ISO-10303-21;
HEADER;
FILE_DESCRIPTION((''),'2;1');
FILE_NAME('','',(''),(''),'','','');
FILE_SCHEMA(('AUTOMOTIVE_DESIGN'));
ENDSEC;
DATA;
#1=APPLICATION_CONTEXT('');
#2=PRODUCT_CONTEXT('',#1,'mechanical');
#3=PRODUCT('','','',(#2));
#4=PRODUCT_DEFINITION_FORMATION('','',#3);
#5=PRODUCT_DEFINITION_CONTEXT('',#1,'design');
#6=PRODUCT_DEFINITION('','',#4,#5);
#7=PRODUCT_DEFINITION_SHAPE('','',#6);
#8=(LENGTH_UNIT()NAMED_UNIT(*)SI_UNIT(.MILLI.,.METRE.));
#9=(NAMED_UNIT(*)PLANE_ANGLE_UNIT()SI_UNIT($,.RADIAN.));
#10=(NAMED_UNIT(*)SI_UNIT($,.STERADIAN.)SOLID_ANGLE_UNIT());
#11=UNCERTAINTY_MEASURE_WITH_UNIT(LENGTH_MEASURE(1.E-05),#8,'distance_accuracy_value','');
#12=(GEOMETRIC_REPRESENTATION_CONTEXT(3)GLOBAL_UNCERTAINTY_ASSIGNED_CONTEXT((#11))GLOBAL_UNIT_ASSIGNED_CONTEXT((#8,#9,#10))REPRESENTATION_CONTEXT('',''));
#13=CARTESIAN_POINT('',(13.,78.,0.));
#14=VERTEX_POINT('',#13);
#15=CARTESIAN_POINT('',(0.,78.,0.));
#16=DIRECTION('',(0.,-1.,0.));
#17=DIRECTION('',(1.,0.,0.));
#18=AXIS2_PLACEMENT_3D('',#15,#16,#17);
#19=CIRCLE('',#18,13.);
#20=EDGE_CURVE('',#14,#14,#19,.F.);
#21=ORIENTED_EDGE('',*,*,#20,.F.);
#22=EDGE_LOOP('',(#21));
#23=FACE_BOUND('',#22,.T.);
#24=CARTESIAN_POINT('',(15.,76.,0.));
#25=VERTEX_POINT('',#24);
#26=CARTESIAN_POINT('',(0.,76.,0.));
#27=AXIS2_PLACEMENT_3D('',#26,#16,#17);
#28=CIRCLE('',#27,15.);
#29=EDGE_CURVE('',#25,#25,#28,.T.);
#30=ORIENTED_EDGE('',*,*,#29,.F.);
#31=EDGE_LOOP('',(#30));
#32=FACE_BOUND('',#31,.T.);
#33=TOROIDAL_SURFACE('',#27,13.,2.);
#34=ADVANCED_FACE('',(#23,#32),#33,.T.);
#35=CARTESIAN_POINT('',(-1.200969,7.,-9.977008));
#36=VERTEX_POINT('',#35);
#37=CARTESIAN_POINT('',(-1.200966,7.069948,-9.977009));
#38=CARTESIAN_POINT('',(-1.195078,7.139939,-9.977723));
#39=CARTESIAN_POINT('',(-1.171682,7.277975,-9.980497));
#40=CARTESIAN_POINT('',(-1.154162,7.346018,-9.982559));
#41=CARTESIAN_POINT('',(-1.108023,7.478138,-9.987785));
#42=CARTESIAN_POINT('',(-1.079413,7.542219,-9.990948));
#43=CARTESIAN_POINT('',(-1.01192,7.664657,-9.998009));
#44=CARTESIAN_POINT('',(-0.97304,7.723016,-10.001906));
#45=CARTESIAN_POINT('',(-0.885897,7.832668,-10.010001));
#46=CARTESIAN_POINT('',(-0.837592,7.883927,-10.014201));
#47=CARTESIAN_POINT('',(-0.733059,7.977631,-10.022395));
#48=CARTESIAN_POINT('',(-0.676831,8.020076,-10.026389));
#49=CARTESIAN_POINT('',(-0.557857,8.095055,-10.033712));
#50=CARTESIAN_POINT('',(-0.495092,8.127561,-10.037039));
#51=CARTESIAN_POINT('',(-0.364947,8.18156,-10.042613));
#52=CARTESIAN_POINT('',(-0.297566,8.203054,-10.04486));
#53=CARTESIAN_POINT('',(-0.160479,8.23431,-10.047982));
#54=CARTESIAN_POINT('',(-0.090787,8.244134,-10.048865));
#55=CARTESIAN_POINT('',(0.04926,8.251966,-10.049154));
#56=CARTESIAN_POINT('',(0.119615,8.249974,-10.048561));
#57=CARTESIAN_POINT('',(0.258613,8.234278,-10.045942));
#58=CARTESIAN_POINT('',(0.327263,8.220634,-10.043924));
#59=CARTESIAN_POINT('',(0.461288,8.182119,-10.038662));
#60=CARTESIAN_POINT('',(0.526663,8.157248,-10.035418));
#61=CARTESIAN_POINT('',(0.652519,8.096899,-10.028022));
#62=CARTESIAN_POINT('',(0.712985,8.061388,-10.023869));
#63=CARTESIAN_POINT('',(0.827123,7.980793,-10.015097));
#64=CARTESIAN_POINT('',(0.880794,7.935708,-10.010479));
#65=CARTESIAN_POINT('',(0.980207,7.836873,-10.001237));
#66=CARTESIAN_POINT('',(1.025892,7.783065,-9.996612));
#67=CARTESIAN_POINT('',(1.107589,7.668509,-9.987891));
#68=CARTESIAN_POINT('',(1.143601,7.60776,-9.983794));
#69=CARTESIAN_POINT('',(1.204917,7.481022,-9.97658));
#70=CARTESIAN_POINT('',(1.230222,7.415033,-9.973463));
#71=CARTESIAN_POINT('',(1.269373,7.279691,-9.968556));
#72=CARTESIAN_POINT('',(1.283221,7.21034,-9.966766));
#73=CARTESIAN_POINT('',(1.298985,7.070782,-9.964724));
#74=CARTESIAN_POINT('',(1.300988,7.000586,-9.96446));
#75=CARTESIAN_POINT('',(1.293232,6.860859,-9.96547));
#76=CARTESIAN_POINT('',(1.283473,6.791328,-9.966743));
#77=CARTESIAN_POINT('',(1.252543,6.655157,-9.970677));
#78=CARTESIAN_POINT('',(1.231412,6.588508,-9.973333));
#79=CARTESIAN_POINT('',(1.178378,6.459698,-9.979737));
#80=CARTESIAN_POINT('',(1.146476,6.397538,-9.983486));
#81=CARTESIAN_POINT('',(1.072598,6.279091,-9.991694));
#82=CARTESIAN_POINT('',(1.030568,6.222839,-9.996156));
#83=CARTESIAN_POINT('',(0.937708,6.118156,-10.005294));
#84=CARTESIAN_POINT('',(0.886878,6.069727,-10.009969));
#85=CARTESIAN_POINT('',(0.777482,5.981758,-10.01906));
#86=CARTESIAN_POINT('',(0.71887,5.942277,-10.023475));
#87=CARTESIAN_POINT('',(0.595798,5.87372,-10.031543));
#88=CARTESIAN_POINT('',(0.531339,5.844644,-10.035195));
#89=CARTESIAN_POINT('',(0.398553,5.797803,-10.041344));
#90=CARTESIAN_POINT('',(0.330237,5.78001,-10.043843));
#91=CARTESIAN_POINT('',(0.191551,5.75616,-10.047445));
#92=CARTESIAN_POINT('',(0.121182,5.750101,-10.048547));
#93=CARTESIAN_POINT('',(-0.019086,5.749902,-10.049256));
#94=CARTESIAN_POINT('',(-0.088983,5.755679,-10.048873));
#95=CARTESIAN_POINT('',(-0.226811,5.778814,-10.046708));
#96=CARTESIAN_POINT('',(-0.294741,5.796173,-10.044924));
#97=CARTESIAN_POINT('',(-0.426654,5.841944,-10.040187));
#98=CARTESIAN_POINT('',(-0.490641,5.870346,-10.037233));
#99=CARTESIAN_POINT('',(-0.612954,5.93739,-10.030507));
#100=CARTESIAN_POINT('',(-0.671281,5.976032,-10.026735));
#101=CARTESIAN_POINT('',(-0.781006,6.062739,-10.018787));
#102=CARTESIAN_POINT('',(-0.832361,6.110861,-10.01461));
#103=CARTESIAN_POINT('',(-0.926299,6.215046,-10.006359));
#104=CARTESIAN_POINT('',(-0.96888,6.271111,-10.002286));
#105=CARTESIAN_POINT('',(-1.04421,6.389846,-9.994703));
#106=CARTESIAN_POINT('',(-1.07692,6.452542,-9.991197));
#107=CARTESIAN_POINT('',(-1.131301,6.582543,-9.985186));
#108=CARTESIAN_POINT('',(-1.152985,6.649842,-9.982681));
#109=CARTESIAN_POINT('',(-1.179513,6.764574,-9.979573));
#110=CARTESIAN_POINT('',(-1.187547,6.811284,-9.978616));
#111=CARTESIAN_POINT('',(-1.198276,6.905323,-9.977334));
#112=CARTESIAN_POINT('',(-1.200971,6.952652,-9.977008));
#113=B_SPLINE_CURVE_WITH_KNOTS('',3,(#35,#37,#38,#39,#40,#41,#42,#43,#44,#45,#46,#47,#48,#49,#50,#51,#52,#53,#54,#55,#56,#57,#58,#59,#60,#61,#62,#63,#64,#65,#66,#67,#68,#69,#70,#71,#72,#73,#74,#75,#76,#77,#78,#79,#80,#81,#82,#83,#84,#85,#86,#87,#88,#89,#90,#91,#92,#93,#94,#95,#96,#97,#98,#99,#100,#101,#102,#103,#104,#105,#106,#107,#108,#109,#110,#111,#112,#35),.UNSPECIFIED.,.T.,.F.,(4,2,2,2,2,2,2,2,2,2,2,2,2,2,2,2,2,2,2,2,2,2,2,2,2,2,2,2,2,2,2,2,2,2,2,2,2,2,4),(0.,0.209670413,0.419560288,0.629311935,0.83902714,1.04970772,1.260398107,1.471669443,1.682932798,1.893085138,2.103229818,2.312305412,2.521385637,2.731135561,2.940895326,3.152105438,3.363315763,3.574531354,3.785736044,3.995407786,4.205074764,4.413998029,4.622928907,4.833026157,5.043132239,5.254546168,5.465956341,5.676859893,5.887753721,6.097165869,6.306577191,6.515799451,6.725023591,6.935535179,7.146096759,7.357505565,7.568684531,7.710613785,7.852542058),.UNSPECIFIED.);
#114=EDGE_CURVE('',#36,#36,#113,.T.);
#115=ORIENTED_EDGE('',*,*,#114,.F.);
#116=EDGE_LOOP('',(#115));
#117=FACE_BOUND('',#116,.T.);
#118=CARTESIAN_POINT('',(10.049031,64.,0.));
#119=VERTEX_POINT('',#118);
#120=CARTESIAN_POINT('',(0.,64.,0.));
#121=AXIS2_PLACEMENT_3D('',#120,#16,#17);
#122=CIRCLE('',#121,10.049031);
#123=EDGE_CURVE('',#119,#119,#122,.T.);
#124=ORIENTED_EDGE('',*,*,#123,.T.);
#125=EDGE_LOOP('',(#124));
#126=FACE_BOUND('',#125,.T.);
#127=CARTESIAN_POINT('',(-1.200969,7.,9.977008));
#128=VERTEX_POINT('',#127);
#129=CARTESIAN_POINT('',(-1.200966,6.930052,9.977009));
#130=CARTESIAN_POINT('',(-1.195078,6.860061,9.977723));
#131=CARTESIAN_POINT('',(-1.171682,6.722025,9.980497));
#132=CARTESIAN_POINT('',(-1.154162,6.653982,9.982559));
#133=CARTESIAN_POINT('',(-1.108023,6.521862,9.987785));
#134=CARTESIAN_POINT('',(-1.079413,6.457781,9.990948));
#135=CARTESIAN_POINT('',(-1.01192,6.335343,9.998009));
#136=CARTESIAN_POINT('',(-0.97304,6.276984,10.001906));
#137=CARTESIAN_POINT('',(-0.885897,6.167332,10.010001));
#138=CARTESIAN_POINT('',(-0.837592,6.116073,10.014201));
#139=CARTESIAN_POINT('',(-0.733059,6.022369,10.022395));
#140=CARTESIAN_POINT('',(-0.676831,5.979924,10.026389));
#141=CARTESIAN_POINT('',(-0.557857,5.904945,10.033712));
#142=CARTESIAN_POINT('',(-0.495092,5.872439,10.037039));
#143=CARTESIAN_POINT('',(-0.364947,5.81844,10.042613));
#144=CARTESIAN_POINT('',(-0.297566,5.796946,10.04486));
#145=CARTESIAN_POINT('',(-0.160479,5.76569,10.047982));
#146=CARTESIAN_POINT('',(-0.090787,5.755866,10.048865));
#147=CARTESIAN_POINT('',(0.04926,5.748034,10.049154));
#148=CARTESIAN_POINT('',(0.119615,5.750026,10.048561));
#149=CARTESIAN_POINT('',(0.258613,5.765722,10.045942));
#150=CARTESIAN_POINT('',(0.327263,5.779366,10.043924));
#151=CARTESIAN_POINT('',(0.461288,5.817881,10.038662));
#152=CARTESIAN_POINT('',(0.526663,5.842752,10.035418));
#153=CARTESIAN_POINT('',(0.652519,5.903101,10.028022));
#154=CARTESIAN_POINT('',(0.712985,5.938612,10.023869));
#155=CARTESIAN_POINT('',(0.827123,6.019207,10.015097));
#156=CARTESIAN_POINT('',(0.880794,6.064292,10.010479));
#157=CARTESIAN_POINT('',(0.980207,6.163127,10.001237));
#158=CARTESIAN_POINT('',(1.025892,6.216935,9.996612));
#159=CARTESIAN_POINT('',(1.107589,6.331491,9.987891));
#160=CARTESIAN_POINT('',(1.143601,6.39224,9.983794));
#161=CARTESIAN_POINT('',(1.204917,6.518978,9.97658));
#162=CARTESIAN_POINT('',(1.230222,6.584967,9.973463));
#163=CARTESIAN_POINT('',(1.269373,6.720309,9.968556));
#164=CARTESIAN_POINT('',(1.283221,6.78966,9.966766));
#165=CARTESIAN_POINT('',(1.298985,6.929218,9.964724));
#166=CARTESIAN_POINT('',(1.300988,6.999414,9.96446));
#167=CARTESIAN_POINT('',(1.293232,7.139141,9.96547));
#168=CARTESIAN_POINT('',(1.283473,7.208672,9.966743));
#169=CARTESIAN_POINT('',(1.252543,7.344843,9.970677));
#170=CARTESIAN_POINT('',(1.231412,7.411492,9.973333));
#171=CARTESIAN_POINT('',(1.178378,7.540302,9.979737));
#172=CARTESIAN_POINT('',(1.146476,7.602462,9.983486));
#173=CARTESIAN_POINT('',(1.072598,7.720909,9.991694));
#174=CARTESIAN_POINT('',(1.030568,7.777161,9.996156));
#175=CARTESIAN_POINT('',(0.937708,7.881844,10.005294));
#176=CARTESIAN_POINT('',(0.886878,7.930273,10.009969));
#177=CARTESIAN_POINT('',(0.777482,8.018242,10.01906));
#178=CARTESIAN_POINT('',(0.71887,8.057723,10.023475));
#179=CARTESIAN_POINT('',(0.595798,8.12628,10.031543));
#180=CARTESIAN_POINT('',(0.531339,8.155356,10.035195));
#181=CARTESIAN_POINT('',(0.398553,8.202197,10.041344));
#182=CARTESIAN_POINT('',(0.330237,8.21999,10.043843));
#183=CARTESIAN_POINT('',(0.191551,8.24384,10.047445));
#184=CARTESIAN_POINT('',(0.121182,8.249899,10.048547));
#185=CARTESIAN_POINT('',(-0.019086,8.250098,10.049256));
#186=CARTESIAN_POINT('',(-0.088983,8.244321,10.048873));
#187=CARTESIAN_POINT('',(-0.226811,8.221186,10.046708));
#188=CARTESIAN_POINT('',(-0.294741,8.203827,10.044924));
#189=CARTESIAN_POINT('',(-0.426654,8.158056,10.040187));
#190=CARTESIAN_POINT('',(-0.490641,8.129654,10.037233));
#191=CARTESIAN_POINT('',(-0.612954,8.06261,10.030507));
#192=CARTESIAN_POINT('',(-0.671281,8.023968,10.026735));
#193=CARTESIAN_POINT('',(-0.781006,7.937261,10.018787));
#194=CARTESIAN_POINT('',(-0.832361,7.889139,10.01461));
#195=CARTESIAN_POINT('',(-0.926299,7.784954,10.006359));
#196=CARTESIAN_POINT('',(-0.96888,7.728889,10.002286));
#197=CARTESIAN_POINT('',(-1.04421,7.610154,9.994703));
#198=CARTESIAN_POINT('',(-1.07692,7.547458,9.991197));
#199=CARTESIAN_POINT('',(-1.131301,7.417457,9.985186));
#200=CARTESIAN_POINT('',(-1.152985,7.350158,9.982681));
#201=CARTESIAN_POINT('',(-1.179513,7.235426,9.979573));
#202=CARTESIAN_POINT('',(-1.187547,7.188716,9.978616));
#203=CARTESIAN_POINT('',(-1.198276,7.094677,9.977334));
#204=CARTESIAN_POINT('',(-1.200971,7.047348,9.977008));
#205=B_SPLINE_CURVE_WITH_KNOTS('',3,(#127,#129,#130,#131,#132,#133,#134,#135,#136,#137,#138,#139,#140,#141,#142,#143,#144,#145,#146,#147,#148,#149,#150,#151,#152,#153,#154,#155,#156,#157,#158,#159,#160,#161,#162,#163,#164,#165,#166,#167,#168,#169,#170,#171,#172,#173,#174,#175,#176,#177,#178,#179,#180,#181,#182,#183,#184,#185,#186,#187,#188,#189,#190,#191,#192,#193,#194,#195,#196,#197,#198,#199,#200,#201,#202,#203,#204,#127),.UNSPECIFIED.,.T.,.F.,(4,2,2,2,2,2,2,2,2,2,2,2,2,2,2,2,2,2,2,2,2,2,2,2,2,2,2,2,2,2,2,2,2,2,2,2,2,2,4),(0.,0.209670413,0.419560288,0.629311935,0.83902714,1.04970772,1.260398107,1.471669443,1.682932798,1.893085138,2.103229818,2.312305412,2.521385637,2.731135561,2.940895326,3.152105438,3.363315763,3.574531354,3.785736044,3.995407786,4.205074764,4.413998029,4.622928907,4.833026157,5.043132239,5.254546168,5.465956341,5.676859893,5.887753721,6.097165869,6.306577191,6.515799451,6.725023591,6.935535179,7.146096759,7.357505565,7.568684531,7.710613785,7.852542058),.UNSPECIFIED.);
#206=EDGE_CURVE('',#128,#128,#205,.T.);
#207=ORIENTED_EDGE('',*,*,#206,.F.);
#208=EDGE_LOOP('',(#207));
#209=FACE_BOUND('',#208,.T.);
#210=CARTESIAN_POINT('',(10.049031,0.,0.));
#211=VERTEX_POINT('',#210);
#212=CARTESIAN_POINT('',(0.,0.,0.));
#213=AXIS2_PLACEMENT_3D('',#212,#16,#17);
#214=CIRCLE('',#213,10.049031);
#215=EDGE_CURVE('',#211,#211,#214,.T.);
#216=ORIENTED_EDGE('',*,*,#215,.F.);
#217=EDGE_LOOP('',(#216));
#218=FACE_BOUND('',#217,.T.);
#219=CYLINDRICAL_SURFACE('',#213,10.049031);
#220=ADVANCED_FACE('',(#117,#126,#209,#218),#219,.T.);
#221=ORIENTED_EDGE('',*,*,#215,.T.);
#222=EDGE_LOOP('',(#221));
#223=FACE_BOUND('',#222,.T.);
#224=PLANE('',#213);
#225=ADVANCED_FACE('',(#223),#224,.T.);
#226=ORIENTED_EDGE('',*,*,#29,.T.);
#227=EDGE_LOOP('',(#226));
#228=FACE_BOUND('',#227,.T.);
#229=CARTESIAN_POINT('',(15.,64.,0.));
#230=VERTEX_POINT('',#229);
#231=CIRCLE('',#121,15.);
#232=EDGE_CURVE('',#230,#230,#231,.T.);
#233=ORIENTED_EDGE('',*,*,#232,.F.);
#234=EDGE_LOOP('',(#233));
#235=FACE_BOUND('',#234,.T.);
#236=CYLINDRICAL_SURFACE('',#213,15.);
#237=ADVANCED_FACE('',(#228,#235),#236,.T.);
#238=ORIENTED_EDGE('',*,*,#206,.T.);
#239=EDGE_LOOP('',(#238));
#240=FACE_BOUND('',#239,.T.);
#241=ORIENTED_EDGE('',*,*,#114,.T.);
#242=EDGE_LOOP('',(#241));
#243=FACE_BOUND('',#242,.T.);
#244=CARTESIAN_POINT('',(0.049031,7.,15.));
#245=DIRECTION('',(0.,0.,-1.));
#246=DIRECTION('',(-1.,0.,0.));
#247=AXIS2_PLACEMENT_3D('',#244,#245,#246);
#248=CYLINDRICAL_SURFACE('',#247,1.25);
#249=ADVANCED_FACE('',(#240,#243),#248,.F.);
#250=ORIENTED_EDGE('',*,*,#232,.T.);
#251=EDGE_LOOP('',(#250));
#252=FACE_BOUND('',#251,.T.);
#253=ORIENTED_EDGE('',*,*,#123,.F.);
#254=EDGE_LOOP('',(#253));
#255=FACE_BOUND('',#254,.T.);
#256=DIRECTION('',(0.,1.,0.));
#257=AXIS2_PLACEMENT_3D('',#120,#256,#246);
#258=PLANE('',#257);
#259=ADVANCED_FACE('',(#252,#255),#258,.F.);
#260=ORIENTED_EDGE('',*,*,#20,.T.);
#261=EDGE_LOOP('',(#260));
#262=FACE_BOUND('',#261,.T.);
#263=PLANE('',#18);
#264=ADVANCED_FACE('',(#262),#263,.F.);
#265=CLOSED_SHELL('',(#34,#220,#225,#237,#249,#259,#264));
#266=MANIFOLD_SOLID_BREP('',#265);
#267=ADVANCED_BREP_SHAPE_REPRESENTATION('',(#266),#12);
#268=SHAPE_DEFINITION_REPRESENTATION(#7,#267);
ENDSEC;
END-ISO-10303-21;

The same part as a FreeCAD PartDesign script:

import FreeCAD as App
import Part
import Sketcher
from FreeCAD import Vector
Q = App.Units.Quantity


def edges_at(feature, points):
    """Names of the edges that pass closest to the given points."""
    edges = feature.Shape.Edges
    near = lambda p: min(range(len(edges)), key=lambda i: edges[i].distToShape(Part.Vertex(*p))[0])
    return sorted({f"Edge{near(p) + 1}" for p in points})


def add_polygon(sketch, points):
    """Adds a closed chain of lines whose ends are joined by coincident constraints."""
    first, n = sketch.GeometryCount, len(points)
    for a, b in zip(points, points[1:] + points[:1]):
        sketch.addGeometry(Part.LineSegment(App.Vector(*a, 0), App.Vector(*b, 0)), False)
    for i in range(n):
        sketch.addConstraint(Sketcher.Constraint("Coincident", first + i, 2, first + (i + 1) % n, 1))

doc = App.newDocument("Part")
body = doc.addObject("PartDesign::Body", "Body")

sketch1 = body.newObject("Sketcher::SketchObject", "Sketch")
sketch1.AttachmentSupport = (doc.getObject("XY_Plane"), [""])
sketch1.MapMode = "FlatFace"
add_polygon(sketch1, [(0, 78), (0, 0), (10.049031, 0), (10.049031, 64), (15, 64), (15, 78)])
sketch1.addConstraint(Sketcher.Constraint("Vertical", 0))
sketch1.addConstraint(Sketcher.Constraint("Horizontal", 1))
sketch1.addConstraint(Sketcher.Constraint("Vertical", 2))
sketch1.addConstraint(Sketcher.Constraint("Horizontal", 3))
sketch1.addConstraint(Sketcher.Constraint("Vertical", 4))
sketch1.addConstraint(Sketcher.Constraint("Horizontal", 5))
sketch1.addConstraint(Sketcher.Constraint("Coincident", 0, 2, -1, 1))
sketch1.addConstraint(Sketcher.Constraint("DistanceX", 5, 2, 5, 1, Q("15 mm")))
sketch1.addConstraint(Sketcher.Constraint("DistanceY", 0, 2, 0, 1, Q("78 mm")))
sketch1.addConstraint(Sketcher.Constraint("DistanceY", 2, 1, 2, 2, Q("64 mm")))
sketch1.addConstraint(Sketcher.Constraint("DistanceX", 1, 1, 1, 2, Q("10.049031 mm")))
revolution = body.newObject("PartDesign::Revolution", "Revolution")
revolution.Profile = sketch1
revolution.ReferenceAxis = (sketch1, ["V_Axis"])
revolution.Angle = 360
doc.recompute()

fillet = body.newObject("PartDesign::Fillet", "Fillet")
fillet.Base = (revolution, edges_at(revolution, [(-15, 78, 0)]))
fillet.Radius = 2

sketch2 = body.newObject("Sketcher::SketchObject", "Sketch001")
sketch2.AttachmentSupport = (doc.getObject("XY_Plane"), [""])
sketch2.MapMode = "FlatFace"
sketch2.addGeometry(Part.Circle(Vector(0.049031, 7, 0), Vector(0, 0, 1), 1.25), False)
sketch2.addConstraint(Sketcher.Constraint("Diameter", 0, Q("2.5 mm")))
sketch2.addConstraint(Sketcher.Constraint("DistanceY", -1, 1, 0, 3, Q("7 mm")))
sketch2.addConstraint(Sketcher.Constraint("DistanceX", -1, 1, 0, 3, Q("0.049031 mm")))
pocket1 = body.newObject("PartDesign::Pocket", "Pocket")
pocket1.Profile = sketch2
pocket1.Type = "ThroughAll"
pocket1.Midplane = True

doc.recompute()
